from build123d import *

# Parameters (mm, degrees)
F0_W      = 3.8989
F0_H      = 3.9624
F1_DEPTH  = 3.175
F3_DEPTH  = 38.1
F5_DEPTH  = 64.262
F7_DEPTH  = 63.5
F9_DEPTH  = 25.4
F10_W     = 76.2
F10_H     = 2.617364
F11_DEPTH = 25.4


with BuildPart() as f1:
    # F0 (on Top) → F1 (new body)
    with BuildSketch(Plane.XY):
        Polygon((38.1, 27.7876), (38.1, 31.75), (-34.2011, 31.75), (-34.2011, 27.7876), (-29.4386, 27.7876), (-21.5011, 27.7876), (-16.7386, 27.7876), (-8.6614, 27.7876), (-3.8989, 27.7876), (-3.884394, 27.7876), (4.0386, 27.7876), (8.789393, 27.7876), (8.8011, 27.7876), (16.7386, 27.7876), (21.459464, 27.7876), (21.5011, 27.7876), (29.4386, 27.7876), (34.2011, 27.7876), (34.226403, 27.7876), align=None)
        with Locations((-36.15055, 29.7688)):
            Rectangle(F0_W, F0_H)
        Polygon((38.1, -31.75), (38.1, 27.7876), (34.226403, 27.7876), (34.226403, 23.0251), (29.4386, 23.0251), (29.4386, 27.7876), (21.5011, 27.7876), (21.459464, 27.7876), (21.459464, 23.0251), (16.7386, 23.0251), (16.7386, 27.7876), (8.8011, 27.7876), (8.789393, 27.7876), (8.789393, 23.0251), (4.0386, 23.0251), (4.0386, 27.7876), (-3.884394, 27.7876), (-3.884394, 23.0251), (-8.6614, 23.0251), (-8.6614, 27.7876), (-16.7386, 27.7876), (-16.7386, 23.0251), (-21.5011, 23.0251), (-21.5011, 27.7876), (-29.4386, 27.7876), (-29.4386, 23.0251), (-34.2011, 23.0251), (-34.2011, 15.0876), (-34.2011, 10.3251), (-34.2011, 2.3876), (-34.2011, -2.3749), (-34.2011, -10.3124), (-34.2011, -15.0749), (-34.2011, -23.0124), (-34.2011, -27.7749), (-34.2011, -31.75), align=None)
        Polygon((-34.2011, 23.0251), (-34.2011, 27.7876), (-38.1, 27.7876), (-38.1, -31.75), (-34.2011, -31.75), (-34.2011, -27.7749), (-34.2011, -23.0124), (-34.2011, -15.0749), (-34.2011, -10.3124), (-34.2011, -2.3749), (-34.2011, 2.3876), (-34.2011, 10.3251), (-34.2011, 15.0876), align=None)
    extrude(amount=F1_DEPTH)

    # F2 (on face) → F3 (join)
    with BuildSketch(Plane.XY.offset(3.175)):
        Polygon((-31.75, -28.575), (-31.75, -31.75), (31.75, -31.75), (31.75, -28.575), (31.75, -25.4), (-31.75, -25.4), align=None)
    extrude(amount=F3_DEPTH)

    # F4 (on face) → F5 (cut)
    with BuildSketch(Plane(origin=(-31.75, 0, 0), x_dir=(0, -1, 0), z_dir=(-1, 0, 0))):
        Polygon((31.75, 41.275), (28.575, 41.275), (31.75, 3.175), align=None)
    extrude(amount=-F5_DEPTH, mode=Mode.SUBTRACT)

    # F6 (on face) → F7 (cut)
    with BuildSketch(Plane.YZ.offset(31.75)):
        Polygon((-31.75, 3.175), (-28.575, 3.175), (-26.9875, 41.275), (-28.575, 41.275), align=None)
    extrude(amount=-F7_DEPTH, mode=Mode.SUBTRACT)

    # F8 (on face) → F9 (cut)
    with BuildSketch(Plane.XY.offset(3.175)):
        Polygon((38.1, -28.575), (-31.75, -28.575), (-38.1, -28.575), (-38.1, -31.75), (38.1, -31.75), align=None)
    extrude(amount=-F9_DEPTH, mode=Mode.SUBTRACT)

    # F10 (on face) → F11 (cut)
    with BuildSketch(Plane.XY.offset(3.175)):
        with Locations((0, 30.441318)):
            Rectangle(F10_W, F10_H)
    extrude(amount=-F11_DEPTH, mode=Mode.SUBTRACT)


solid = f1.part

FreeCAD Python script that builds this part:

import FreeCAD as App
import Part
import Sketcher
Q = App.Units.Quantity


def add_polygon(sketch, points):
    """Adds a closed chain of lines whose ends are joined by coincident constraints."""
    first, n = sketch.GeometryCount, len(points)
    for a, b in zip(points, points[1:] + points[:1]):
        sketch.addGeometry(Part.LineSegment(App.Vector(*a, 0), App.Vector(*b, 0)), False)
    for i in range(n):
        sketch.addConstraint(Sketcher.Constraint("Coincident", first + i, 2, first + (i + 1) % n, 1))

doc = App.newDocument("Part")
body = doc.addObject("PartDesign::Body", "Body")

# Sketch on XY plane
sketch1 = doc.addObject("Sketcher::SketchObject", "Sketch")
body.addObject(sketch1)
sketch1.AttachmentSupport = (doc.XY_Plane, [""])
sketch1.MapMode = "FlatFace"
add_polygon(sketch1, [(38.1, 31.75), (-38.1, 31.75), (-38.1, -31.75), (38.1, -31.75)])  # lines 0-3
add_polygon(sketch1, [(-34.2011, 27.7876), (-29.4386, 27.7876), (-29.4386, 23.0251), (-34.2011, 23.0251)])  # lines 4-7
add_polygon(sketch1, [(-21.5011, 27.7876), (-16.7386, 27.7876), (-16.7386, 23.0251), (-21.5011, 23.0251)])  # lines 8-11
add_polygon(sketch1, [(-8.6614, 27.7876), (-3.884394, 27.7876), (-3.884394, 23.0251), (-8.6614, 23.0251)])  # lines 12-15
add_polygon(sketch1, [(4.0386, 27.7876), (8.789393, 27.7876), (8.789393, 23.0251), (4.0386, 23.0251)])  # lines 16-19
add_polygon(sketch1, [(16.7386, 27.7876), (21.459464, 27.7876), (21.459464, 23.0251), (16.7386, 23.0251)])  # lines 20-23
add_polygon(sketch1, [(29.4386, 27.7876), (34.226403, 27.7876), (34.226403, 23.0251), (29.4386, 23.0251)])  # lines 24-27
sketch1.addConstraint(Sketcher.Constraint("Horizontal", 0))
sketch1.addConstraint(Sketcher.Constraint("Vertical", 1))
sketch1.addConstraint(Sketcher.Constraint("Horizontal", 2))
sketch1.addConstraint(Sketcher.Constraint("Vertical", 3))
sketch1.addConstraint(Sketcher.Constraint("Horizontal", 4))
sketch1.addConstraint(Sketcher.Constraint("Vertical", 5))
sketch1.addConstraint(Sketcher.Constraint("Horizontal", 6))
sketch1.addConstraint(Sketcher.Constraint("Vertical", 7))
sketch1.addConstraint(Sketcher.Constraint("Horizontal", 8))
sketch1.addConstraint(Sketcher.Constraint("Vertical", 9))
sketch1.addConstraint(Sketcher.Constraint("Horizontal", 10))
sketch1.addConstraint(Sketcher.Constraint("Vertical", 11))
sketch1.addConstraint(Sketcher.Constraint("Horizontal", 12))
sketch1.addConstraint(Sketcher.Constraint("Vertical", 13))
sketch1.addConstraint(Sketcher.Constraint("Horizontal", 14))
sketch1.addConstraint(Sketcher.Constraint("Vertical", 15))
sketch1.addConstraint(Sketcher.Constraint("Horizontal", 16))
sketch1.addConstraint(Sketcher.Constraint("Vertical", 17))
sketch1.addConstraint(Sketcher.Constraint("Horizontal", 18))
sketch1.addConstraint(Sketcher.Constraint("Vertical", 19))
sketch1.addConstraint(Sketcher.Constraint("Horizontal", 20))
sketch1.addConstraint(Sketcher.Constraint("Vertical", 21))
sketch1.addConstraint(Sketcher.Constraint("Horizontal", 22))
sketch1.addConstraint(Sketcher.Constraint("Vertical", 23))
sketch1.addConstraint(Sketcher.Constraint("Horizontal", 24))
sketch1.addConstraint(Sketcher.Constraint("Vertical", 25))
sketch1.addConstraint(Sketcher.Constraint("Horizontal", 26))
sketch1.addConstraint(Sketcher.Constraint("Vertical", 27))
sketch1.addConstraint(Sketcher.Constraint("Symmetric", 0, 2, 2, 2, -1, 1))
sketch1.addConstraint(Sketcher.Constraint("Symmetric", 9, 2, 22, 2, -2))
sketch1.addConstraint(Sketcher.Constraint("Symmetric", 5, 2, 26, 2, -2))
sketch1.addConstraint(Sketcher.Constraint("Horizontal", 7, 2, 8, 2))
sketch1.addConstraint(Sketcher.Constraint("Horizontal", 6, 2, 9, 2))
sketch1.addConstraint(Sketcher.Constraint("Horizontal", 11, 2, 12, 2))
sketch1.addConstraint(Sketcher.Constraint("Horizontal", 10, 2, 13, 2))
sketch1.addConstraint(Sketcher.Constraint("Horizontal", 15, 2, 16, 2))
sketch1.addConstraint(Sketcher.Constraint("Horizontal", 14, 2, 17, 2))
sketch1.addConstraint(Sketcher.Constraint("Horizontal", 19, 2, 20, 2))
sketch1.addConstraint(Sketcher.Constraint("Horizontal", 23, 2, 24, 2))
sketch1.addConstraint(Sketcher.Constraint("Equal", 6, 8))
sketch1.addConstraint(Sketcher.Constraint("Equal", 10, 5))
sketch1.addConstraint(Sketcher.Constraint("DistanceX", 0, 2, 0, 1, Q("3 in")))
sketch1.addConstraint(Sketcher.Constraint("DistanceY", 1, 2, 1, 1, Q("2.5 in")))
sketch1.addConstraint(Sketcher.Constraint("DistanceX", 4, 2, 8, 2, Q("0.5 in")))
sketch1.addConstraint(Sketcher.Constraint("DistanceX", 14, 2, 18, 2, Q("0.5 in")))
sketch1.addConstraint(Sketcher.Constraint("DistanceX", 18, 2, 22, 2, Q("0.5 in")))
sketch1.addConstraint(Sketcher.Constraint("DistanceX", 4, 1, 4, 2, Q("0.1875 in")))
sketch1.addConstraint(Sketcher.Constraint("DistanceX", 4, 2, -1, 1, Q("1.159 in")))
sketch1.addConstraint(Sketcher.Constraint("DistanceY", -1, 1, 4, 2, Q("1.094 in")))
sketch1.addConstraint(Sketcher.Constraint("DistanceX", 12, 1, 12, 2, Q("4.777006 mm")))
sketch1.addConstraint(Sketcher.Constraint("DistanceX", 16, 1, 16, 2, Q("4.750793 mm")))
sketch1.addConstraint(Sketcher.Constraint("DistanceX", 20, 1, 20, 2, Q("4.720864 mm")))
sketch1.addConstraint(Sketcher.Constraint("DistanceX", 24, 1, 24, 2, Q("4.787803 mm")))
pad1 = doc.addObject("PartDesign::Pad", "Pad")
body.addObject(pad1)
pad1.Profile = sketch1
pad1.Length = Q("0.125 in")

# Sketch on XY plane
sketch2 = doc.addObject("Sketcher::SketchObject", "Sketch001")
body.addObject(sketch2)
sketch2.AttachmentSupport = (doc.XY_Plane, [""])
sketch2.MapMode = "FlatFace"
sketch2.AttachmentOffset = App.Placement(App.Vector(0, 0, 0.125 * 25.4), App.Rotation())
add_polygon(sketch2, [(-31.75, -31.75), (31.75, -31.75), (31.75, -25.4), (-31.75, -25.4)])  # lines 0-3
sketch2.addConstraint(Sketcher.Constraint("Horizontal", 0))
sketch2.addConstraint(Sketcher.Constraint("Vertical", 1))
sketch2.addConstraint(Sketcher.Constraint("Horizontal", 2))
sketch2.addConstraint(Sketcher.Constraint("Vertical", 3))
sketch2.addConstraint(Sketcher.Constraint("DistanceX", 0, 1, 0, 2, Q("2.5 in")))
sketch2.addConstraint(Sketcher.Constraint("DistanceY", 1, 2, -1, 1, Q("1 in")))
sketch2.addConstraint(Sketcher.Constraint("DistanceY", 1, 1, 1, 2, Q("0.25 in")))
sketch2.addConstraint(Sketcher.Constraint("DistanceX", -1, 1, 0, 2, Q("1.25 in")))
pad2 = doc.addObject("PartDesign::Pad", "Pad001")
body.addObject(pad2)
pad2.Profile = sketch2
pad2.Length = Q("1.5 in")

# Sketch on YZ plane
sketch3 = doc.addObject("Sketcher::SketchObject", "Sketch002")
body.addObject(sketch3)
sketch3.AttachmentSupport = (doc.YZ_Plane, [""])
sketch3.MapMode = "FlatFace"
sketch3.AttachmentOffset = App.Placement(App.Vector(0, 0, -1.25 * 25.4), App.Rotation())
add_polygon(sketch3, [(-31.75, 41.275), (-28.575, 41.275), (-31.75, 3.175)])  # lines 0-2
sketch3.addConstraint(Sketcher.Constraint("Horizontal", 0))
sketch3.addConstraint(Sketcher.Constraint("Vertical", 2))
sketch3.addConstraint(Sketcher.Constraint("DistanceY", 2, 1, 2, 2, Q("1.5 in")))
sketch3.addConstraint(Sketcher.Constraint("DistanceX", 0, 1, 0, 2, Q("0.125 in")))
sketch3.addConstraint(Sketcher.Constraint("DistanceX", 1, 2, -1, 1, Q("1.25 in")))
sketch3.addConstraint(Sketcher.Constraint("DistanceY", -1, 1, 0, 2, Q("1.625 in")))
pocket1 = doc.addObject("PartDesign::Pocket", "Pocket")
body.addObject(pocket1)
pocket1.Profile = sketch3
pocket1.Length = Q("2.53 in")
pocket1.Reversed = True

# Sketch on YZ plane
sketch4 = doc.addObject("Sketcher::SketchObject", "Sketch003")
body.addObject(sketch4)
sketch4.AttachmentSupport = (doc.YZ_Plane, [""])
sketch4.MapMode = "FlatFace"
sketch4.AttachmentOffset = App.Placement(App.Vector(0, 0, 1.25 * 25.4), App.Rotation())
add_polygon(sketch4, [(-31.75, 3.175), (-28.575, 3.175), (-26.9875, 41.275), (-28.575, 41.275)])  # lines 0-3
sketch4.addConstraint(Sketcher.Constraint("Horizontal", 0))
sketch4.addConstraint(Sketcher.Constraint("Horizontal", 2))
sketch4.addConstraint(Sketcher.Constraint("Vertical", 0, 2, 2, 2))
sketch4.addConstraint(Sketcher.Constraint("DistanceY", 0, 2, 1, 2, Q("1.5 in")))
sketch4.addConstraint(Sketcher.Constraint("DistanceX", 0, 1, 0, 2, Q("0.125 in")))
sketch4.addConstraint(Sketcher.Constraint("DistanceX", 2, 2, 2, 1, Q("0.0625 in")))
sketch4.addConstraint(Sketcher.Constraint("DistanceX", 3, 2, -1, 1, Q("1.25 in")))
sketch4.addConstraint(Sketcher.Constraint("DistanceY", -1, 1, 0, 2, Q("0.125 in")))
pocket2 = doc.addObject("PartDesign::Pocket", "Pocket001")
body.addObject(pocket2)
pocket2.Profile = sketch4
pocket2.Length = Q("2.5 in")

# Sketch on XY plane
sketch5 = doc.addObject("Sketcher::SketchObject", "Sketch004")
body.addObject(sketch5)
sketch5.AttachmentSupport = (doc.XY_Plane, [""])
sketch5.MapMode = "FlatFace"
sketch5.AttachmentOffset = App.Placement(App.Vector(0, 0, 0.125 * 25.4), App.Rotation())
add_polygon(sketch5, [(38.1, -28.575), (-38.1, -28.575), (-38.1, -31.75), (38.1, -31.75)])  # lines 0-3
sketch5.addConstraint(Sketcher.Constraint("Horizontal", 0))
sketch5.addConstraint(Sketcher.Constraint("Vertical", 1))
sketch5.addConstraint(Sketcher.Constraint("Horizontal", 2))
sketch5.addConstraint(Sketcher.Constraint("Vertical", 3))
sketch5.addConstraint(Sketcher.Constraint("DistanceX", 0, 2, 0, 1, Q("3 in")))
sketch5.addConstraint(Sketcher.Constraint("DistanceX", 0, 2, -1, 1, Q("1.5 in")))
sketch5.addConstraint(Sketcher.Constraint("DistanceY", 1, 2, 1, 1, Q("0.125 in")))
sketch5.addConstraint(Sketcher.Constraint("DistanceY", 1, 2, -1, 1, Q("1.25 in")))
pocket3 = doc.addObject("PartDesign::Pocket", "Pocket002")
body.addObject(pocket3)
pocket3.Profile = sketch5
pocket3.Length = Q("1 in")

# Sketch on XY plane
sketch6 = doc.addObject("Sketcher::SketchObject", "Sketch005")
body.addObject(sketch6)
sketch6.AttachmentSupport = (doc.XY_Plane, [""])
sketch6.MapMode = "FlatFace"
sketch6.AttachmentOffset = App.Placement(App.Vector(0, 0, 0.125 * 25.4), App.Rotation())
add_polygon(sketch6, [(-38.1, 31.75), (-38.1, 29.132636), (38.1, 29.132636), (38.1, 31.75)])  # lines 0-3
sketch6.addConstraint(Sketcher.Constraint("Vertical", 0))
sketch6.addConstraint(Sketcher.Constraint("Horizontal", 1))
sketch6.addConstraint(Sketcher.Constraint("Vertical", 2))
sketch6.addConstraint(Sketcher.Constraint("Horizontal", 3))
sketch6.addConstraint(Sketcher.Constraint("DistanceX", 1, 1, 1, 2, Q("3 in")))
sketch6.addConstraint(Sketcher.Constraint("DistanceX", 0, 2, -1, 1, Q("1.5 in")))
sketch6.addConstraint(Sketcher.Constraint("DistanceY", -1, 1, 2, 2, Q("1.25 in")))
sketch6.addConstraint(Sketcher.Constraint("DistanceY", 0, 2, 0, 1, Q("2.617364 mm")))
pocket4 = doc.addObject("PartDesign::Pocket", "Pocket003")
body.addObject(pocket4)
pocket4.Profile = sketch6
pocket4.Length = Q("1 in")

doc.recompute()
